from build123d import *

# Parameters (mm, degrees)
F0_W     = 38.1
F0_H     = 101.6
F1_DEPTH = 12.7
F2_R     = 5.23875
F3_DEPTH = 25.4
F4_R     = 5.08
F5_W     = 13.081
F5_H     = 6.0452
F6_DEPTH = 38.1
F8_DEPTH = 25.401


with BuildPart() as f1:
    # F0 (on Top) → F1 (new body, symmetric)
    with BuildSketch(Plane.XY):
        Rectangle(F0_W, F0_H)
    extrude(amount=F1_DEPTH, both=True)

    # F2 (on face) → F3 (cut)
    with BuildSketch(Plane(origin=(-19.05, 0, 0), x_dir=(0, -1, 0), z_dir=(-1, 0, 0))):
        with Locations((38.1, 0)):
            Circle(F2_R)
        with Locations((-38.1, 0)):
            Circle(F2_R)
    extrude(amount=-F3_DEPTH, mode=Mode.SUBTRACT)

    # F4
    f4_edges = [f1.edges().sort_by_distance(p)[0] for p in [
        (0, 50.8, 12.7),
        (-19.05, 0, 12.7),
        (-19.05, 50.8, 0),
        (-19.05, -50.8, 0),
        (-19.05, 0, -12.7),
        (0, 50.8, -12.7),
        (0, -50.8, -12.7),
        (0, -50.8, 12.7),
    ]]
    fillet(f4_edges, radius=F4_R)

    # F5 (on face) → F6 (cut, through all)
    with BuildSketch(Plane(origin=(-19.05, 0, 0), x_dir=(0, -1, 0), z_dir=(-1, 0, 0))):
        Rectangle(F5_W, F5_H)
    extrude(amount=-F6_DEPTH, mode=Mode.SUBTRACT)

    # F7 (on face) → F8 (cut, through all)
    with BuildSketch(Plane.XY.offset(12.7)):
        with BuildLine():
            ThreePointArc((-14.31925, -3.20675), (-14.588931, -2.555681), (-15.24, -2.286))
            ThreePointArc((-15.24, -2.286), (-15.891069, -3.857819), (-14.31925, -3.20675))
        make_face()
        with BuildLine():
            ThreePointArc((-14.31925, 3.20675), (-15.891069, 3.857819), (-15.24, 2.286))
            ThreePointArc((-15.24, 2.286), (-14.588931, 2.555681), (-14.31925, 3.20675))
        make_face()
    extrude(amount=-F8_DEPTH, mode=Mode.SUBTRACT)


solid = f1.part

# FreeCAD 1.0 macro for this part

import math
import FreeCAD as App
import Part
import Sketcher
from FreeCAD import Vector
Q = App.Units.Quantity


def edges_at(feature, points):
    """Names of the edges that pass closest to the given points."""
    edges = feature.Shape.Edges
    near = lambda p: min(range(len(edges)), key=lambda i: edges[i].distToShape(Part.Vertex(*p))[0])
    return sorted({f"Edge{near(p) + 1}" for p in points})

doc = App.newDocument("Part")
body = doc.addObject("PartDesign::Body", "Body")

sketch1 = body.newObject("Sketcher::SketchObject", "Sketch")
sketch1.AttachmentSupport = (doc.getObject("XY_Plane"), [""])
sketch1.MapMode = "FlatFace"
sketch1.addGeometry(Part.LineSegment(Vector(-19, 51, 0), Vector(-19, -51, 0)), False)
sketch1.addGeometry(Part.LineSegment(Vector(-19, -51, 0), Vector(19, -51, 0)), False)
sketch1.addGeometry(Part.LineSegment(Vector(19, -51, 0), Vector(19, 51, 0)), False)
sketch1.addGeometry(Part.LineSegment(Vector(19, 51, 0), Vector(-19, 51, 0)), False)
sketch1.addConstraint(Sketcher.Constraint("Coincident", 0, 2, 1, 1))
sketch1.addConstraint(Sketcher.Constraint("Coincident", 1, 2, 2, 1))
sketch1.addConstraint(Sketcher.Constraint("Coincident", 2, 2, 3, 1))
sketch1.addConstraint(Sketcher.Constraint("Coincident", 3, 2, 0, 1))
sketch1.addConstraint(Sketcher.Constraint("Vertical", 0))
sketch1.addConstraint(Sketcher.Constraint("Horizontal", 1))
sketch1.addConstraint(Sketcher.Constraint("Vertical", 2))
sketch1.addConstraint(Sketcher.Constraint("Horizontal", 3))
sketch1.addConstraint(Sketcher.Constraint("Symmetric", 0, 2, 2, 2, -1, 1))
sketch1.addConstraint(Sketcher.Constraint("DistanceY", 0, 2, 0, 1, Q("4 in")))
sketch1.addConstraint(Sketcher.Constraint("DistanceX", 1, 1, 1, 2, Q("1.5 in")))
pad1 = body.newObject("PartDesign::Pad", "Pad")
pad1.Profile = sketch1
pad1.Length = Q("1 in")
pad1.Midplane = True

sketch2 = body.newObject("Sketcher::SketchObject", "Sketch001")
sketch2.AttachmentSupport = (doc.getObject("YZ_Plane"), [""])
sketch2.MapMode = "FlatFace"
sketch2.AttachmentOffset = App.Placement(Vector(0, 0, -0.75 * 25.4), App.Rotation())
sketch2.addGeometry(Part.Circle(Vector(-38, 0, 0), Vector(0, 0, 1), 5), False)
sketch2.addGeometry(Part.Circle(Vector(38, 0, 0), Vector(0, 0, 1), 5), False)
sketch2.addConstraint(Sketcher.Constraint("Equal", 0, 1))
sketch2.addConstraint(Sketcher.Constraint("Symmetric", 0, 3, 1, 3, -1, 1))
sketch2.addConstraint(Sketcher.Constraint("PointOnObject", 0, 3, -1))
sketch2.addConstraint(Sketcher.Constraint("DistanceX", 0, 3, 1, 3, Q("3 in")))
sketch2.addConstraint(Sketcher.Constraint("Diameter", 0, Q("0.4125 in")))
pocket1 = body.newObject("PartDesign::Pocket", "Pocket")
pocket1.Profile = sketch2
pocket1.Length = Q("1 in")
pocket1.Reversed = True
doc.recompute()

fillet = body.newObject("PartDesign::Fillet", "Fillet")
fillet.Base = (pocket1, edges_at(pocket1, [
    (0, 50.8, 12.7),
    (-19.05, 0, 12.7),
    (-19.05, 50.8, 0),
    (-19.05, -50.8, 0),
    (-19.05, 0, -12.7),
    (0, 50.8, -12.7),
    (0, -50.8, -12.7),
    (0, -50.8, 12.7),
]))
fillet.Radius = Q("0.2 in")

sketch3 = body.newObject("Sketcher::SketchObject", "Sketch002")
sketch3.AttachmentSupport = (doc.getObject("YZ_Plane"), [""])
sketch3.MapMode = "FlatFace"
sketch3.AttachmentOffset = App.Placement(Vector(0, 0, -0.75 * 25.4), App.Rotation())
sketch3.addGeometry(Part.LineSegment(Vector(7, 3, 0), Vector(7, -3, 0)), False)
sketch3.addGeometry(Part.LineSegment(Vector(7, -3, 0), Vector(-7, -3, 0)), False)
sketch3.addGeometry(Part.LineSegment(Vector(-7, -3, 0), Vector(-7, 3, 0)), False)
sketch3.addGeometry(Part.LineSegment(Vector(-7, 3, 0), Vector(7, 3, 0)), False)
sketch3.addConstraint(Sketcher.Constraint("Coincident", 0, 2, 1, 1))
sketch3.addConstraint(Sketcher.Constraint("Coincident", 1, 2, 2, 1))
sketch3.addConstraint(Sketcher.Constraint("Coincident", 2, 2, 3, 1))
sketch3.addConstraint(Sketcher.Constraint("Coincident", 3, 2, 0, 1))
sketch3.addConstraint(Sketcher.Constraint("Vertical", 0))
sketch3.addConstraint(Sketcher.Constraint("Horizontal", 1))
sketch3.addConstraint(Sketcher.Constraint("Vertical", 2))
sketch3.addConstraint(Sketcher.Constraint("Horizontal", 3))
sketch3.addConstraint(Sketcher.Constraint("Symmetric", 0, 2, 2, 2, -1, 1))
sketch3.addConstraint(Sketcher.Constraint("DistanceX", 1, 2, 1, 1, Q("0.515 in")))
sketch3.addConstraint(Sketcher.Constraint("DistanceY", 0, 2, 0, 1, Q("0.238 in")))
pocket2 = body.newObject("PartDesign::Pocket", "Pocket001")
pocket2.Profile = sketch3
pocket2.Type = "ThroughAll"
pocket2.Reversed = True

sketch4 = body.newObject("Sketcher::SketchObject", "Sketch003")
sketch4.AttachmentSupport = (doc.getObject("XY_Plane"), [""])
sketch4.MapMode = "FlatFace"
sketch4.AttachmentOffset = App.Placement(Vector(0, 0, 0.5 * 25.4), App.Rotation())
sketch4.addGeometry(Part.ArcOfCircle(Part.Circle(Vector(-15.2, -3.2, 0), Vector(0, 0, 1), 0.9), math.radians(0), math.radians(90)), False)
sketch4.addGeometry(Part.ArcOfCircle(Part.Circle(Vector(-15.2, -3.2, 0), Vector(0, 0, 1), 0.9), math.radians(90), math.radians(360)), False)
sketch4.addGeometry(Part.ArcOfCircle(Part.Circle(Vector(-15.2, 3.2, 0), Vector(0, 0, 1), 0.9), math.radians(0), math.radians(270)), False)
sketch4.addGeometry(Part.ArcOfCircle(Part.Circle(Vector(-15.2, 3.2, 0), Vector(0, 0, 1), 0.9), math.radians(-90), math.radians(0)), False)
sketch4.addConstraint(Sketcher.Constraint("Tangent", 0, 1, 1, 2))
sketch4.addConstraint(Sketcher.Constraint("Coincident", 1, 1, 0, 2))
sketch4.addConstraint(Sketcher.Constraint("Tangent", 2, 1, 3, 2))
sketch4.addConstraint(Sketcher.Constraint("Coincident", 3, 1, 2, 2))
sketch4.addConstraint(Sketcher.Constraint("Equal", 1, 2))
sketch4.addConstraint(Sketcher.Constraint("Symmetric", 0, 3, 2, 3, -1))
sketch4.addConstraint(Sketcher.Constraint("Horizontal", 1, 3, 0, 1))
sketch4.addConstraint(Sketcher.Constraint("Horizontal", 3, 3, 2, 1))
sketch4.addConstraint(Sketcher.Constraint("Vertical", 3, 3, 1, 1))
sketch4.addConstraint(Sketcher.Constraint("Vertical", 1, 1, 3, 1))
sketch4.addConstraint(Sketcher.Constraint("DistanceX", 0, 3, -1, 1, Q("0.5999999 in")))
sketch4.addConstraint(Sketcher.Constraint("DistanceY", 1, 1, -1, 1, Q("0.09 in")))
sketch4.addConstraint(Sketcher.Constraint("Radius", 0, 0.920749))
pocket3 = body.newObject("PartDesign::Pocket", "Pocket002")
pocket3.Profile = sketch4
pocket3.Type = "ThroughAll"

doc.recompute()
